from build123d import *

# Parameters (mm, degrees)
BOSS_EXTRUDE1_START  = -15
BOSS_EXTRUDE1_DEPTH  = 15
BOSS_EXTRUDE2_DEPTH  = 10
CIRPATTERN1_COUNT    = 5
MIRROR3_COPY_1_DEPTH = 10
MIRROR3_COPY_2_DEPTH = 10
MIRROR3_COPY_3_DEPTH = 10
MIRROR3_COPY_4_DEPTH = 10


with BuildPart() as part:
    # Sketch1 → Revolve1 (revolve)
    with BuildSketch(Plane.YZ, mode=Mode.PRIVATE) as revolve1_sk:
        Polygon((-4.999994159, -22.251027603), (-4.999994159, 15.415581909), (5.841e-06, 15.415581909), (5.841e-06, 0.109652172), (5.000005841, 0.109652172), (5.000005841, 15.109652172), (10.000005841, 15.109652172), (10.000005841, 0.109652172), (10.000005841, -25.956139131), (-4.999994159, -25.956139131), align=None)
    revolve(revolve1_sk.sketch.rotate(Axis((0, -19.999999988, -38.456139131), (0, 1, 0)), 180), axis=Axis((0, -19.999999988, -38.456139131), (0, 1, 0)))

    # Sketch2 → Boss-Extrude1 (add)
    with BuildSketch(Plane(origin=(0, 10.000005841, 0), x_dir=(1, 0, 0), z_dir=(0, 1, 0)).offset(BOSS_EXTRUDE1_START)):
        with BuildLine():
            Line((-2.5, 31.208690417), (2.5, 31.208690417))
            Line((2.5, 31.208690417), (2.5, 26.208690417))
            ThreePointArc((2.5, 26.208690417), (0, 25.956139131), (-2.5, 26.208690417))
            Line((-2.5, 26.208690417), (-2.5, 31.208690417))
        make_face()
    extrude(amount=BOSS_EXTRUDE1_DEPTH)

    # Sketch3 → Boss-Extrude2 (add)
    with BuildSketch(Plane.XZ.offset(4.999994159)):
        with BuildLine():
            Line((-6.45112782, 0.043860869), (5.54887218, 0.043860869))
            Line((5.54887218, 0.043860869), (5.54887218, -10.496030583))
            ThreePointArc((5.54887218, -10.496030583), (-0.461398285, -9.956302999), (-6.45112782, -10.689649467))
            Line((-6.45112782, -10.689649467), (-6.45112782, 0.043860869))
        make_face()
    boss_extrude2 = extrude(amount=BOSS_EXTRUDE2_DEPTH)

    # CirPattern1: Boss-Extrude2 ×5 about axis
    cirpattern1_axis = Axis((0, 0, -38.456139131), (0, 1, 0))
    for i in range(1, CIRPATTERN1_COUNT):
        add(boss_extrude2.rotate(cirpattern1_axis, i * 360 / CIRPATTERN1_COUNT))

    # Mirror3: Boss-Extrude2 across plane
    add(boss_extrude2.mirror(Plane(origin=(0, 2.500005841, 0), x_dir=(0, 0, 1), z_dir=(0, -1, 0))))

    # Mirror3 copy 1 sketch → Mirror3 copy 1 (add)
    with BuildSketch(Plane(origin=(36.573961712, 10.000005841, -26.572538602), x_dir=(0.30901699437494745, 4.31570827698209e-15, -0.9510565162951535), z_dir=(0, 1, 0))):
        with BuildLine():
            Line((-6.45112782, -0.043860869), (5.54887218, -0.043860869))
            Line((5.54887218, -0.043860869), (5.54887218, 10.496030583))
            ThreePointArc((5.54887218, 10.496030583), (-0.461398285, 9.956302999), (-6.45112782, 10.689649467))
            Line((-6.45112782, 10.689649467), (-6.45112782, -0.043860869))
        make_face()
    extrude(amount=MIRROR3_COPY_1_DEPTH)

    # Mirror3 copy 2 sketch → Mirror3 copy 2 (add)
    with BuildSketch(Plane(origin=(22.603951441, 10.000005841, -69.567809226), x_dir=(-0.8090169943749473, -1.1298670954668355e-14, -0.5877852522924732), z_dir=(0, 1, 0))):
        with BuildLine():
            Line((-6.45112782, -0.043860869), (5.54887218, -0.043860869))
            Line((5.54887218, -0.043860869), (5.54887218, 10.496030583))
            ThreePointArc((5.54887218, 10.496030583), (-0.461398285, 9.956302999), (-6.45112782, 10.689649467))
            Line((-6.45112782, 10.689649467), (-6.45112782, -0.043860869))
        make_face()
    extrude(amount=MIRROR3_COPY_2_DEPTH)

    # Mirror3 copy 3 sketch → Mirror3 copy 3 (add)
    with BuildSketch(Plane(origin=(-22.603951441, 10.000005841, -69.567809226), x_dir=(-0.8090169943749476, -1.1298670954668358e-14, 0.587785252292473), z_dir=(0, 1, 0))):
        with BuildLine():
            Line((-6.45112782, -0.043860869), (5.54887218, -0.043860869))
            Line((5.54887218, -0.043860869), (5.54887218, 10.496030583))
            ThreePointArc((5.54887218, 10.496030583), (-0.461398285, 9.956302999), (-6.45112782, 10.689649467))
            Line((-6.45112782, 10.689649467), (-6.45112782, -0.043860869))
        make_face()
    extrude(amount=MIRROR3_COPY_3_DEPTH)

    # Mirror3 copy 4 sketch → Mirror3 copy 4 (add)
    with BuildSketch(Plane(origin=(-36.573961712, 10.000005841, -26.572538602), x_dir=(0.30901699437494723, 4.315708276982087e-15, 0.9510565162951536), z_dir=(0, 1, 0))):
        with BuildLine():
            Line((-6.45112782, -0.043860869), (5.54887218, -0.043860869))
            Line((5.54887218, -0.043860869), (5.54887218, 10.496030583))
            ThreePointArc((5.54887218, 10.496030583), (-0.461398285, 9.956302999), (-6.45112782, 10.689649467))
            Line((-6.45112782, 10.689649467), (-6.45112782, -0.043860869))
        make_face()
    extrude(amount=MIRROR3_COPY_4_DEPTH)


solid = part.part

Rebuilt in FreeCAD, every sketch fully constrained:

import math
import FreeCAD as App
import Part
import Sketcher
Q = App.Units.Quantity


def add_polygon(sketch, points):
    """Adds a closed chain of lines whose ends are joined by coincident constraints."""
    first, n = sketch.GeometryCount, len(points)
    for a, b in zip(points, points[1:] + points[:1]):
        sketch.addGeometry(Part.LineSegment(App.Vector(*a, 0), App.Vector(*b, 0)), False)
    for i in range(n):
        sketch.addConstraint(Sketcher.Constraint("Coincident", first + i, 2, first + (i + 1) % n, 1))

doc = App.newDocument("Part")
body = doc.addObject("PartDesign::Body", "Body")

sketch1 = body.newObject("Sketcher::SketchObject", "Sketch")
sketch1.AttachmentSupport = (doc.getObject("YZ_Plane"), [""])
sketch1.MapMode = "FlatFace"
add_polygon(sketch1, [(-4.999994, 15.415582), (-4.999994, -25.956139), (10.000006, -25.956139), (10.000006, 15.109652), (5.000006, 15.109652), (5.000006, 0.109652), (0.000006, 0.109652), (0.000006, 15.415582)])
sketch1.addGeometry(Part.LineSegment(App.Vector(-4.999994, -38.456139, 0), App.Vector(10.000006, -38.456139, 0)), True)
sketch1.addConstraint([
    Sketcher.Constraint("Vertical", 0),
    Sketcher.Constraint("Horizontal", 1),
    Sketcher.Constraint("Vertical", 2),
    Sketcher.Constraint("Horizontal", 3),
    Sketcher.Constraint("Vertical", 4),
    Sketcher.Constraint("Horizontal", 5),
    Sketcher.Constraint("Vertical", 6),
    Sketcher.Constraint("Horizontal", 7),
    Sketcher.Constraint("Horizontal", 8),
    Sketcher.Constraint("Vertical", 7, 2, 8, 1),
    Sketcher.Constraint("Vertical", 2, 2, 8, 2),
    Sketcher.Constraint("Equal", 3, 5),
    Sketcher.Constraint("Equal", 5, 7),
    Sketcher.Constraint("Equal", 8, 4),
    Sketcher.Constraint("DistanceX", 1, 1, 1, 2, Q("15 mm")),
    Sketcher.Constraint("DistanceY", 8, 1, 0, 2, Q("12.5 mm")),
    Sketcher.Constraint("DistanceY", 0, 2, 0, 1, Q("41.371721 mm")),
    Sketcher.Constraint("DistanceY", 2, 1, 2, 2, Q("41.065791 mm")),
    Sketcher.Constraint("DistanceY", 0, 2, -1, 1, Q("25.956139 mm")),
    Sketcher.Constraint("DistanceX", 0, 2, -1, 1, Q("4.999994 mm")),
])
revolution = body.newObject("PartDesign::Revolution", "Revolution")
revolution.Profile = sketch1
revolution.ReferenceAxis = (sketch1, ["Axis0"])
revolution.Angle = 360

sketch2 = body.newObject("Sketcher::SketchObject", "Sketch001")
sketch2.AttachmentSupport = (doc.getObject("XZ_Plane"), [""])
sketch2.MapMode = "FlatFace"
sketch2.AttachmentOffset = App.Placement(App.Vector(0, 0, 4.999994), App.Rotation())
sketch2.addGeometry([
    Part.LineSegment(App.Vector(2.5, -31.20869, 0), App.Vector(-2.5, -31.20869, 0)),
    Part.LineSegment(App.Vector(-2.5, -31.20869, 0), App.Vector(-2.5, -26.20869, 0)),
    Part.ArcOfCircle(Part.Circle(App.Vector(0, -38.456139, 0), App.Vector(0, 0, 1), 12.5), math.radians(78.463041), math.radians(101.536959)),
    Part.LineSegment(App.Vector(2.5, -26.20869, 0), App.Vector(2.5, -31.20869, 0)),
], False)
sketch2.addConstraint([
    Sketcher.Constraint("Coincident", 0, 2, 1, 1),
    Sketcher.Constraint("Coincident", 1, 2, 2, 2),
    Sketcher.Constraint("Coincident", 2, 1, 3, 1),
    Sketcher.Constraint("Coincident", 3, 2, 0, 1),
    Sketcher.Constraint("Horizontal", 0),
    Sketcher.Constraint("Vertical", 1),
    Sketcher.Constraint("Vertical", 3),
    Sketcher.Constraint("Symmetric", 1, 2, 2, 1, -2),
    Sketcher.Constraint("Equal", 0, 1),
    Sketcher.Constraint("Radius", 2, Q("12.5 mm")),
    Sketcher.Constraint("DistanceX", 0, 2, 0, 1, Q("5 mm")),
    Sketcher.Constraint("DistanceY", 2, 3, -1, 1, Q("38.456139 mm")),
])
pad1 = body.newObject("PartDesign::Pad", "Pad")
pad1.Profile = sketch2
pad1.Length = 15
pad1.Reversed = True

sketch3 = body.newObject("Sketcher::SketchObject", "Sketch002")
sketch3.AttachmentSupport = (doc.getObject("XZ_Plane"), [""])
sketch3.MapMode = "FlatFace"
sketch3.AttachmentOffset = App.Placement(App.Vector(0, 0, 4.999994), App.Rotation())
sketch3.addGeometry([
    Part.LineSegment(App.Vector(5.548872, 0.043861, 0), App.Vector(-6.451128, 0.043861, 0)),
    Part.LineSegment(App.Vector(-6.451128, 0.043861, 0), App.Vector(-6.451128, -10.689649, 0)),
    Part.ArcOfCircle(Part.Circle(App.Vector(0, -38.552581, 0), App.Vector(0, 0, 1), 28.6), math.radians(78.812723), math.radians(103.03604)),
    Part.LineSegment(App.Vector(5.548872, -10.496031, 0), App.Vector(5.548872, 0.043861, 0)),
], False)
sketch3.addConstraint([
    Sketcher.Constraint("Coincident", 0, 2, 1, 1),
    Sketcher.Constraint("Coincident", 1, 2, 2, 2),
    Sketcher.Constraint("Coincident", 2, 1, 3, 1),
    Sketcher.Constraint("Coincident", 3, 2, 0, 1),
    Sketcher.Constraint("Horizontal", 0),
    Sketcher.Constraint("Vertical", 1),
    Sketcher.Constraint("Vertical", 3),
    Sketcher.Constraint("PointOnObject", 2, 3, -2),
    Sketcher.Constraint("Radius", 2, Q("28.6 mm")),
    Sketcher.Constraint("DistanceX", 0, 2, 0, 1, Q("12 mm")),
    Sketcher.Constraint("DistanceY", 1, 2, 1, 1, Q("10.73351 mm")),
    Sketcher.Constraint("DistanceY", 3, 1, 3, 2, Q("10.539891 mm")),
    Sketcher.Constraint("DistanceY", 2, 3, -1, 1, Q("38.552581 mm")),
])
pad2 = body.newObject("PartDesign::Pad", "Pad001")
pad2.Profile = sketch3
pad2.Length = 10
doc.recompute()

datumline = body.newObject("PartDesign::Line", "DatumLine")
datumline.Placement = App.Placement(App.Vector(0, 0, -38.456139), App.Rotation(App.Vector(0, 0, 1), App.Vector(0, 1, 0)))
polarpattern = body.newObject("PartDesign::PolarPattern", "PolarPattern")
polarpattern.Originals = [pad2]
polarpattern.Axis = (datumline, [""])
polarpattern.Angle = 360
polarpattern.Occurrences = 5
body.Tip = polarpattern
doc.recompute()

datumplane = body.newObject("PartDesign::Plane", "DatumPlane")
datumplane.AttachmentSupport = (doc.getObject("XZ_Plane"), [""])
datumplane.MapMode = "FlatFace"
datumplane.AttachmentOffset = App.Placement(App.Vector(0, 0, -2.500006), App.Rotation())
mirrored = body.newObject("PartDesign::Mirrored", "Mirrored")
mirrored.Originals = [pad2]
mirrored.MirrorPlane = (datumplane, [""])
body.Tip = mirrored

sketch4 = body.newObject("Sketcher::SketchObject", "Sketch003")
sketch4.AttachmentSupport = (doc.getObject("XZ_Plane"), [""])
sketch4.MapMode = "FlatFace"
sketch4.AttachmentOffset = App.Placement(App.Vector(0, 0, -10.000006), App.Rotation())
sketch4.addGeometry([
    Part.LineSegment(App.Vector(34.622168, -20.423598, 0), App.Vector(38.330372, -31.836276, 0)),
    Part.LineSegment(App.Vector(38.330372, -31.836276, 0), App.Vector(28.306339, -35.093281, 0)),
    Part.ArcOfCircle(Part.Circle(App.Vector(-0.091722, -38.485941, 0), App.Vector(0, 0, 1), 28.6), math.radians(6.812723), math.radians(31.03604)),
    Part.LineSegment(App.Vector(24.413993, -23.740435, 0), App.Vector(34.622168, -20.423598, 0)),
], False)
sketch4.addConstraint([
    Sketcher.Constraint("Coincident", 0, 2, 1, 1),
    Sketcher.Constraint("Coincident", 1, 2, 2, 1),
    Sketcher.Constraint("Coincident", 2, 2, 3, 1),
    Sketcher.Constraint("Coincident", 3, 2, 0, 1),
    Sketcher.Constraint("Perpendicular", 0, 1),
    Sketcher.Constraint("Parallel", 1, 3),
    Sketcher.Constraint("Radius", 2, Q("28.6 mm")),
    Sketcher.Constraint("Angle", 0, Q("-72 deg")),
    Sketcher.Constraint("Distance", 0, Q("12 mm")),
    Sketcher.Constraint("Distance", 1, Q("10.539891 mm")),
    Sketcher.Constraint("Distance", 3, Q("10.73351 mm")),
    Sketcher.Constraint("DistanceX", 2, 3, -1, 1, Q("0.091722 mm")),
    Sketcher.Constraint("DistanceY", 2, 3, -1, 1, Q("38.485941 mm")),
])
pad3 = body.newObject("PartDesign::Pad", "Pad002")
pad3.Profile = sketch4
pad3.Length = 10
pad3.Reversed = True

sketch5 = body.newObject("Sketcher::SketchObject", "Sketch004")
sketch5.AttachmentSupport = (doc.getObject("XZ_Plane"), [""])
sketch5.MapMode = "FlatFace"
sketch5.AttachmentOffset = App.Placement(App.Vector(0, 0, -10.000006), App.Rotation())
sketch5.addGeometry([
    Part.LineSegment(App.Vector(27.848804, -65.811416, 0), App.Vector(18.1406, -72.864839, 0)),
    Part.LineSegment(App.Vector(18.1406, -72.864839, 0), App.Vector(11.945408, -64.337887, 0)),
    Part.ArcOfCircle(Part.Circle(App.Vector(-0.056687, -38.378116, 0), App.Vector(0, 0, 1), 28.6), math.radians(-65.187277), math.radians(-40.96396)),
    Part.LineSegment(App.Vector(21.539805, -57.127823, 0), App.Vector(27.848804, -65.811416, 0)),
], False)
sketch5.addConstraint([
    Sketcher.Constraint("Coincident", 0, 2, 1, 1),
    Sketcher.Constraint("Coincident", 1, 2, 2, 1),
    Sketcher.Constraint("Coincident", 2, 2, 3, 1),
    Sketcher.Constraint("Coincident", 3, 2, 0, 1),
    Sketcher.Constraint("Perpendicular", 0, 1),
    Sketcher.Constraint("Parallel", 1, 3),
    Sketcher.Constraint("Radius", 2, Q("28.6 mm")),
    Sketcher.Constraint("Angle", 0, Q("-144 deg")),
    Sketcher.Constraint("Distance", 0, Q("12 mm")),
    Sketcher.Constraint("DistanceX", 2, 2, 3, 2, Q("6.308999 mm")),
    Sketcher.Constraint("DistanceX", -1, 1, 0, 2, Q("18.1406 mm")),
    Sketcher.Constraint("DistanceY", 3, 2, 2, 3, Q("27.4333 mm")),
    Sketcher.Constraint("DistanceY", 0, 2, -1, 1, Q("72.864839 mm")),
])
pad4 = body.newObject("PartDesign::Pad", "Pad003")
pad4.Profile = sketch5
pad4.Length = 10
pad4.Reversed = True

sketch6 = body.newObject("Sketcher::SketchObject", "Sketch005")
sketch6.AttachmentSupport = (doc.getObject("XZ_Plane"), [""])
sketch6.MapMode = "FlatFace"
sketch6.AttachmentOffset = App.Placement(App.Vector(0, 0, -10.000006), App.Rotation())
sketch6.addGeometry([
    Part.LineSegment(App.Vector(-17.41066, -73.395171, 0), App.Vector(-27.118864, -66.341748, 0)),
    Part.LineSegment(App.Vector(-27.118864, -66.341748, 0), App.Vector(-20.923671, -57.814797, 0)),
    Part.ArcOfCircle(Part.Circle(App.Vector(0.056687, -38.378116, 0), App.Vector(0, 0, 1), 28.6), math.radians(-137.187277), math.radians(-112.96396)),
    Part.LineSegment(App.Vector(-11.101661, -64.711579, 0), App.Vector(-17.41066, -73.395171, 0)),
], False)
sketch6.addConstraint([
    Sketcher.Constraint("Coincident", 0, 2, 1, 1),
    Sketcher.Constraint("Coincident", 1, 2, 2, 1),
    Sketcher.Constraint("Coincident", 2, 2, 3, 1),
    Sketcher.Constraint("Coincident", 3, 2, 0, 1),
    Sketcher.Constraint("Perpendicular", 0, 1),
    Sketcher.Constraint("Parallel", 1, 3),
    Sketcher.Constraint("Radius", 2, Q("28.6 mm")),
    Sketcher.Constraint("Angle", 0, Q("144 deg")),
    Sketcher.Constraint("Distance", 0, Q("12 mm")),
    Sketcher.Constraint("DistanceX", 3, 2, 2, 2, Q("6.308999 mm")),
    Sketcher.Constraint("Distance", 1, Q("10.539891 mm")),
    Sketcher.Constraint("DistanceY", 0, 2, -1, 1, Q("66.341748 mm")),
    Sketcher.Constraint("DistanceX", 1, 2, -1, 1, Q("20.923671 mm")),
])
pad5 = body.newObject("PartDesign::Pad", "Pad004")
pad5.Profile = sketch6
pad5.Length = 10
pad5.Reversed = True

sketch7 = body.newObject("Sketcher::SketchObject", "Sketch006")
sketch7.AttachmentSupport = (doc.getObject("XZ_Plane"), [""])
sketch7.MapMode = "FlatFace"
sketch7.AttachmentOffset = App.Placement(App.Vector(0, 0, -10.000006), App.Rotation())
sketch7.addGeometry([
    Part.LineSegment(App.Vector(-38.609184, -32.694372, 0), App.Vector(-34.90098, -21.281694, 0)),
    Part.LineSegment(App.Vector(-34.90098, -21.281694, 0), App.Vector(-24.876948, -24.538699, 0)),
    Part.ArcOfCircle(Part.Circle(App.Vector(0.091722, -38.485941, 0), App.Vector(0, 0, 1), 28.6), math.radians(150.812723), math.radians(175.03604)),
    Part.LineSegment(App.Vector(-28.401009, -36.011209, 0), App.Vector(-38.609184, -32.694372, 0)),
], False)
sketch7.addConstraint([
    Sketcher.Constraint("Coincident", 0, 2, 1, 1),
    Sketcher.Constraint("Coincident", 1, 2, 2, 1),
    Sketcher.Constraint("Coincident", 2, 2, 3, 1),
    Sketcher.Constraint("Coincident", 3, 2, 0, 1),
    Sketcher.Constraint("Perpendicular", 0, 1),
    Sketcher.Constraint("Parallel", 1, 3),
    Sketcher.Constraint("Radius", 2, Q("28.6 mm")),
    Sketcher.Constraint("Angle", 0, Q("72 deg")),
    Sketcher.Constraint("Distance", 0, Q("12 mm")),
    Sketcher.Constraint("DistanceY", 1, 2, -1, 1, Q("24.538699 mm")),
    Sketcher.Constraint("DistanceX", 0, 2, 2, 3, Q("34.992702 mm")),
    Sketcher.Constraint("Distance", 1, Q("10.539891 mm")),
    Sketcher.Constraint("DistanceX", -1, 1, 2, 3, Q("0.091722 mm")),
])
pad6 = body.newObject("PartDesign::Pad", "Pad005")
pad6.Profile = sketch7
pad6.Length = 10
pad6.Reversed = True

doc.recompute()
